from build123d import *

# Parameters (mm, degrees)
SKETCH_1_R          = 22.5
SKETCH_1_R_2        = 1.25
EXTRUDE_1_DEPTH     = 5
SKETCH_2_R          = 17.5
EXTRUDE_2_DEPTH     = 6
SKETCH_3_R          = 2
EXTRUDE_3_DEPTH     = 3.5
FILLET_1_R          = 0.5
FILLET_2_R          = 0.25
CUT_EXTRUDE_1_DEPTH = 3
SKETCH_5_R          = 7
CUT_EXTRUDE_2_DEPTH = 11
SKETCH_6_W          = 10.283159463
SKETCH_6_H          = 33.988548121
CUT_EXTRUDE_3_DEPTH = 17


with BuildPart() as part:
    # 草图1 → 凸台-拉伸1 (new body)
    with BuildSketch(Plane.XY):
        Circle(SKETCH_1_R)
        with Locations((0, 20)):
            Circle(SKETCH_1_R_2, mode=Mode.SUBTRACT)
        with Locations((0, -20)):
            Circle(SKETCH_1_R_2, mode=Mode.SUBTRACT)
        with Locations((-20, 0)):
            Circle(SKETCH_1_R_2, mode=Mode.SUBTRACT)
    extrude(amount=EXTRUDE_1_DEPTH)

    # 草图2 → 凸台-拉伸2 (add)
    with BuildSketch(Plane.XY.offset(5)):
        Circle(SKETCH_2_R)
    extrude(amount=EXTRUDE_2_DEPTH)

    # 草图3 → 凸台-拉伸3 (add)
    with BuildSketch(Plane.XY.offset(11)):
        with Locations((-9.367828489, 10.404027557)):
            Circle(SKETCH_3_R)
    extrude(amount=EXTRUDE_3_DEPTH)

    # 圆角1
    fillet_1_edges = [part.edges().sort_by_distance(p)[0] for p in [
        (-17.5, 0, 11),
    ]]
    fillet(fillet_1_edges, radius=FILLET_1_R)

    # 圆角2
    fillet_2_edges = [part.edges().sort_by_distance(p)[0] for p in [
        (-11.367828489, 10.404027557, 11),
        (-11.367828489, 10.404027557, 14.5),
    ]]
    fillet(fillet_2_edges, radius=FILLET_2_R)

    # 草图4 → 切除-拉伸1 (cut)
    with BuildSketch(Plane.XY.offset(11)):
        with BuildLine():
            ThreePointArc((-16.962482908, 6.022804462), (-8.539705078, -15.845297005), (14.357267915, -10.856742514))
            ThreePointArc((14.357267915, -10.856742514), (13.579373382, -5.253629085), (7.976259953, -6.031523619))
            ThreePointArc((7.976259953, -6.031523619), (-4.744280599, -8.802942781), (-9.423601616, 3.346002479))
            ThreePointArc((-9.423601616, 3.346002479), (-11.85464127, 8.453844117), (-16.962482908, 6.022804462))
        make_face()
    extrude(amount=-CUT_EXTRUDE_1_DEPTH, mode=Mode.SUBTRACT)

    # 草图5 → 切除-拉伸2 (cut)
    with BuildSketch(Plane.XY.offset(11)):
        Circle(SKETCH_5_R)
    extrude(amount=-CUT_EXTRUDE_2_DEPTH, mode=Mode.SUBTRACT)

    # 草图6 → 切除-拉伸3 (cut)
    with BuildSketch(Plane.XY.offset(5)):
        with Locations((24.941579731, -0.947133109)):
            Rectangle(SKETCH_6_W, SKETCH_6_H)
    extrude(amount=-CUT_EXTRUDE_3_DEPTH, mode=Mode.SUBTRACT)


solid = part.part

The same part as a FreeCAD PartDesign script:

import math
import FreeCAD as App
import Part
import Sketcher
from FreeCAD import Vector
Q = App.Units.Quantity


def edges_at(feature, points):
    """Names of the edges that pass closest to the given points."""
    edges = feature.Shape.Edges
    near = lambda p: min(range(len(edges)), key=lambda i: edges[i].distToShape(Part.Vertex(*p))[0])
    return sorted({f"Edge{near(p) + 1}" for p in points})


def add_polygon(sketch, points):
    """Adds a closed chain of lines whose ends are joined by coincident constraints."""
    first, n = sketch.GeometryCount, len(points)
    for a, b in zip(points, points[1:] + points[:1]):
        sketch.addGeometry(Part.LineSegment(App.Vector(*a, 0), App.Vector(*b, 0)), False)
    for i in range(n):
        sketch.addConstraint(Sketcher.Constraint("Coincident", first + i, 2, first + (i + 1) % n, 1))

doc = App.newDocument("Part")
body = doc.addObject("PartDesign::Body", "Body")

sketch1 = doc.addObject("Sketcher::SketchObject", "Sketch")
body.addObject(sketch1)
sketch1.AttachmentSupport = (doc.XY_Plane, [""])
sketch1.MapMode = "FlatFace"
sketch1.addGeometry(Part.Circle(Vector(0, 0, 0), Vector(0, 0, 1), 22.5), False)
sketch1.addGeometry(Part.Circle(Vector(0, -20, 0), Vector(0, 0, 1), 1.2), False)
sketch1.addGeometry(Part.Circle(Vector(-20, 0, 0), Vector(0, 0, 1), 1.2), False)
sketch1.addGeometry(Part.Circle(Vector(0, 20, 0), Vector(0, 0, 1), 1.2), False)
sketch1.addConstraint(Sketcher.Constraint("Coincident", 0, 3, -1, 1))
sketch1.addConstraint(Sketcher.Constraint("Equal", 1, 2))
sketch1.addConstraint(Sketcher.Constraint("Equal", 2, 3))
sketch1.addConstraint(Sketcher.Constraint("Symmetric", 1, 3, 3, 3, -1, 1))
sketch1.addConstraint(Sketcher.Constraint("PointOnObject", 1, 3, -2))
sketch1.addConstraint(Sketcher.Constraint("PointOnObject", 2, 3, -1))
sketch1.addConstraint(Sketcher.Constraint("Diameter", 0, Q("45 mm")))
sketch1.addConstraint(Sketcher.Constraint("Diameter", 1, Q("2.5 mm")))
sketch1.addConstraint(Sketcher.Constraint("DistanceY", 1, 3, -1, 1, Q("20 mm")))
sketch1.addConstraint(Sketcher.Constraint("DistanceX", 2, 3, -1, 1, Q("20 mm")))
pad1 = doc.addObject("PartDesign::Pad", "Pad")
body.addObject(pad1)
pad1.Profile = sketch1
pad1.Length = 5

sketch2 = doc.addObject("Sketcher::SketchObject", "Sketch001")
body.addObject(sketch2)
sketch2.AttachmentSupport = (doc.XY_Plane, [""])
sketch2.MapMode = "FlatFace"
sketch2.AttachmentOffset = App.Placement(Vector(0, 0, 5), App.Rotation())
sketch2.addGeometry(Part.Circle(Vector(0, 0, 0), Vector(0, 0, 1), 18), False)
sketch2.addConstraint(Sketcher.Constraint("Coincident", 0, 3, -1, 1))
sketch2.addConstraint(Sketcher.Constraint("Diameter", 0, Q("35 mm")))
pad2 = doc.addObject("PartDesign::Pad", "Pad001")
body.addObject(pad2)
pad2.Profile = sketch2
pad2.Length = 6

sketch3 = doc.addObject("Sketcher::SketchObject", "Sketch002")
body.addObject(sketch3)
sketch3.AttachmentSupport = (doc.XY_Plane, [""])
sketch3.MapMode = "FlatFace"
sketch3.AttachmentOffset = App.Placement(Vector(0, 0, 11), App.Rotation())
sketch3.addGeometry(Part.Circle(Vector(-9.4, 10.4, 0), Vector(0, 0, 1), 2), False)
sketch3.addConstraint(Sketcher.Constraint("Diameter", 0, Q("4 mm")))
sketch3.addConstraint(Sketcher.Constraint("DistanceX", 0, 3, -1, 1, Q("9.367828 mm")))
sketch3.addConstraint(Sketcher.Constraint("DistanceY", -1, 1, 0, 3, Q("10.404028 mm")))
pad3 = doc.addObject("PartDesign::Pad", "Pad002")
body.addObject(pad3)
pad3.Profile = sketch3
pad3.Length = 3.5
doc.recompute()

fillet = doc.addObject("PartDesign::Fillet", "Fillet")
body.addObject(fillet)
fillet.Base = (pad3, edges_at(pad3, [(-17.5, 0, 11)]))
fillet.Radius = 0.5
doc.recompute()

fillet2 = doc.addObject("PartDesign::Fillet", "Fillet001")
body.addObject(fillet2)
fillet2.Base = (fillet, edges_at(fillet, [(-11.368, 10.404, 11), (-11.368, 10.404, 14.5)]))
fillet2.Radius = 0.25

sketch4 = doc.addObject("Sketcher::SketchObject", "Sketch003")
body.addObject(sketch4)
sketch4.AttachmentSupport = (doc.XY_Plane, [""])
sketch4.MapMode = "FlatFace"
sketch4.AttachmentOffset = App.Placement(Vector(0, 0, 11), App.Rotation())
sketch4.addGeometry(Part.ArcOfCircle(Part.Circle(Vector(0, 0, 0), Vector(0, 0, 1), 18), math.radians(160), math.radians(323)), False)
sketch4.addGeometry(Part.ArcOfCircle(Part.Circle(Vector(11.2, -8.4, 0), Vector(0, 0, 1), 4), math.radians(-37), math.radians(143)), False)
sketch4.addGeometry(Part.ArcOfCircle(Part.Circle(Vector(0, 0, 0), Vector(0, 0, 1), 10), math.radians(160), math.radians(323)), False)
sketch4.addGeometry(Part.ArcOfCircle(Part.Circle(Vector(-13.2, 4.7, 0), Vector(0, 0, 1), 4), math.radians(-20), math.radians(160)), False)
sketch4.addConstraint(Sketcher.Constraint("Tangent", 0, 2, 1, 1))
sketch4.addConstraint(Sketcher.Constraint("Tangent", 1, 2, 2, 2))
sketch4.addConstraint(Sketcher.Constraint("Tangent", 2, 1, 3, 1))
sketch4.addConstraint(Sketcher.Constraint("Tangent", 3, 2, 0, 1))
sketch4.addConstraint(Sketcher.Constraint("Coincident", 0, 3, -1, 1))
sketch4.addConstraint(Sketcher.Constraint("Coincident", 2, 3, -1, 1))
sketch4.addConstraint(Sketcher.Constraint("Radius", 0, Q("18 mm")))
sketch4.addConstraint(Sketcher.Constraint("Radius", 1, Q("4 mm")))
sketch4.addConstraint(Sketcher.Constraint("DistanceX", 2, 1, -1, 1, Q("9.423602 mm")))
sketch4.addConstraint(Sketcher.Constraint("DistanceX", -1, 1, 1, 2, Q("7.97626 mm")))
pocket1 = doc.addObject("PartDesign::Pocket", "Pocket")
body.addObject(pocket1)
pocket1.Profile = sketch4
pocket1.Length = 3

sketch5 = doc.addObject("Sketcher::SketchObject", "Sketch004")
body.addObject(sketch5)
sketch5.AttachmentSupport = (doc.XY_Plane, [""])
sketch5.MapMode = "FlatFace"
sketch5.AttachmentOffset = App.Placement(Vector(0, 0, 11), App.Rotation())
sketch5.addGeometry(Part.Circle(Vector(0, 0, 0), Vector(0, 0, 1), 7), False)
sketch5.addConstraint(Sketcher.Constraint("Coincident", 0, 3, -1, 1))
sketch5.addConstraint(Sketcher.Constraint("Diameter", 0, Q("14 mm")))
pocket2 = doc.addObject("PartDesign::Pocket", "Pocket001")
body.addObject(pocket2)
pocket2.Profile = sketch5
pocket2.Length = 11

sketch6 = doc.addObject("Sketcher::SketchObject", "Sketch005")
body.addObject(sketch6)
sketch6.AttachmentSupport = (doc.XY_Plane, [""])
sketch6.MapMode = "FlatFace"
sketch6.AttachmentOffset = App.Placement(Vector(0, 0, 5), App.Rotation())
add_polygon(sketch6, [(20, 16), (20, -18), (30, -18), (30, 16)])
sketch6.addConstraint(Sketcher.Constraint("Vertical", 0))
sketch6.addConstraint(Sketcher.Constraint("Horizontal", 1))
sketch6.addConstraint(Sketcher.Constraint("Vertical", 2))
sketch6.addConstraint(Sketcher.Constraint("Horizontal", 3))
sketch6.addConstraint(Sketcher.Constraint("DistanceX", -1, 1, 0, 2, Q("19.8 mm")))
sketch6.addConstraint(Sketcher.Constraint("DistanceX", 1, 1, 1, 2, Q("10.283159 mm")))
sketch6.addConstraint(Sketcher.Constraint("DistanceY", 0, 2, 0, 1, Q("33.988548 mm")))
sketch6.addConstraint(Sketcher.Constraint("DistanceY", -1, 1, 2, 2, Q("16.047141 mm")))
pocket3 = doc.addObject("PartDesign::Pocket", "Pocket002")
body.addObject(pocket3)
pocket3.Profile = sketch6
pocket3.Length = 17

doc.recompute()
